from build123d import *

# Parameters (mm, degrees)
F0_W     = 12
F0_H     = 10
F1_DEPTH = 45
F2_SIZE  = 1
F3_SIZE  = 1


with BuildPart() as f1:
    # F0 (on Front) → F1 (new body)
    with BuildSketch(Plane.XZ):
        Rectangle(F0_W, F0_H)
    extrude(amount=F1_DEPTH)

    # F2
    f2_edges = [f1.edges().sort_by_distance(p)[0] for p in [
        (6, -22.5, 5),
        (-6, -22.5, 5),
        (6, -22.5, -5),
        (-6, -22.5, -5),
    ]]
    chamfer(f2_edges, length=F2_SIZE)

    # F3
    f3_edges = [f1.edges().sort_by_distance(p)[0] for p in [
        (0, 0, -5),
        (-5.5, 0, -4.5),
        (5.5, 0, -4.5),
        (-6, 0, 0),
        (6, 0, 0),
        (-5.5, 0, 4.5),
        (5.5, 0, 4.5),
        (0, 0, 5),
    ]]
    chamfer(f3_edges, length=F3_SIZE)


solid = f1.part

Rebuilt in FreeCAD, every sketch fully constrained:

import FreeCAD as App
import Part
import Sketcher
from FreeCAD import Vector
Q = App.Units.Quantity


def edges_at(feature, points):
    """Names of the edges that pass closest to the given points."""
    edges = feature.Shape.Edges
    near = lambda p: min(range(len(edges)), key=lambda i: edges[i].distToShape(Part.Vertex(*p))[0])
    return sorted({f"Edge{near(p) + 1}" for p in points})


def add_polygon(sketch, points):
    """Adds a closed chain of lines whose ends are joined by coincident constraints."""
    first, n = sketch.GeometryCount, len(points)
    for a, b in zip(points, points[1:] + points[:1]):
        sketch.addGeometry(Part.LineSegment(App.Vector(*a, 0), App.Vector(*b, 0)), False)
    for i in range(n):
        sketch.addConstraint(Sketcher.Constraint("Coincident", first + i, 2, first + (i + 1) % n, 1))

doc = App.newDocument("Part")
body = doc.addObject("PartDesign::Body", "Body")

sketch1 = doc.addObject("Sketcher::SketchObject", "Sketch")
body.addObject(sketch1)
sketch1.AttachmentSupport = (doc.XZ_Plane, [""])
sketch1.MapMode = "FlatFace"
add_polygon(sketch1, [(-6, 5), (-6, -5), (6, -5), (6, 5)])
sketch1.addConstraint([
    Sketcher.Constraint("Vertical", 0),
    Sketcher.Constraint("Horizontal", 1),
    Sketcher.Constraint("Vertical", 2),
    Sketcher.Constraint("Horizontal", 3),
    Sketcher.Constraint("Symmetric", 0, 2, 2, 2, -1, 1),
    Sketcher.Constraint("DistanceX", 1, 1, 1, 2, Q("12 mm")),
    Sketcher.Constraint("DistanceY", 0, 2, 0, 1, Q("10 mm")),
])
pad1 = doc.addObject("PartDesign::Pad", "Pad")
body.addObject(pad1)
pad1.Profile = sketch1
pad1.Length = 45
doc.recompute()

chamfer = doc.addObject("PartDesign::Chamfer", "Chamfer")
body.addObject(chamfer)
chamfer.Base = (pad1, edges_at(pad1, [
    (6, -22.5, 5),
    (-6, -22.5, 5),
    (6, -22.5, -5),
    (-6, -22.5, -5),
]))
chamfer.Size = 1
doc.recompute()

chamfer2 = doc.addObject("PartDesign::Chamfer", "Chamfer001")
body.addObject(chamfer2)
chamfer2.Base = (chamfer, edges_at(chamfer, [
    (0, 0, -5),
    (-5.5, 0, -4.5),
    (5.5, 0, -4.5),
    (-6, 0, 0),
    (6, 0, 0),
    (-5.5, 0, 4.5),
    (5.5, 0, 4.5),
    (0, 0, 5),
]))
chamfer2.Size = 1

doc.recompute()
